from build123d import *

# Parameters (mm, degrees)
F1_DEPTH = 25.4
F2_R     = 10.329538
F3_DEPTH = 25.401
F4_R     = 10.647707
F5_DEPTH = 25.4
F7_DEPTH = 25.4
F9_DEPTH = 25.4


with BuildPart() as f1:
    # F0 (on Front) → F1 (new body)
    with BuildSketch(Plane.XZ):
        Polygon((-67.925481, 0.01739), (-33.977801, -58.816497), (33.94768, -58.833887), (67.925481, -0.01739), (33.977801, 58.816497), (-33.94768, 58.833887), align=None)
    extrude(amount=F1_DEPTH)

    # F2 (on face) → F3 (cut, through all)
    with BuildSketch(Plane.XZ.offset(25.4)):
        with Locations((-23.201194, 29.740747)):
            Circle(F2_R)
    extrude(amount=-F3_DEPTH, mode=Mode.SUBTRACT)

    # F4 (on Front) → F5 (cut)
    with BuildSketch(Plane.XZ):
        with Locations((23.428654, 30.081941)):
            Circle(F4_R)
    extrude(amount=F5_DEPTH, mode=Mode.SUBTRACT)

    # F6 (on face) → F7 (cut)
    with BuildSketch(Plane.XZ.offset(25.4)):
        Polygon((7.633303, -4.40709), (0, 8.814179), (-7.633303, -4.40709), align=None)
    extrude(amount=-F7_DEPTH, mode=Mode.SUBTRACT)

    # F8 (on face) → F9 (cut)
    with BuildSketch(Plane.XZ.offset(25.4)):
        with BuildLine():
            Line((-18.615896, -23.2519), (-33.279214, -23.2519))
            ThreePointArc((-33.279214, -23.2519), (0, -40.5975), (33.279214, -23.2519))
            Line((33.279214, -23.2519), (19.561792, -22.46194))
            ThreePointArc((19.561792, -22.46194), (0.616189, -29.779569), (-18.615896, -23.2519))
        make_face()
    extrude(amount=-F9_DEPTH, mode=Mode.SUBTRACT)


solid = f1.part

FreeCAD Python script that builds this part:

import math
import FreeCAD as App
import Part
import Sketcher
from FreeCAD import Vector
Q = App.Units.Quantity


def add_polygon(sketch, points):
    """Adds a closed chain of lines whose ends are joined by coincident constraints."""
    first, n = sketch.GeometryCount, len(points)
    for a, b in zip(points, points[1:] + points[:1]):
        sketch.addGeometry(Part.LineSegment(App.Vector(*a, 0), App.Vector(*b, 0)), False)
    for i in range(n):
        sketch.addConstraint(Sketcher.Constraint("Coincident", first + i, 2, first + (i + 1) % n, 1))

doc = App.newDocument("Part")
body = doc.addObject("PartDesign::Body", "Body")

sketch1 = body.newObject("Sketcher::SketchObject", "Sketch")
sketch1.AttachmentSupport = (doc.getObject("XZ_Plane"), [""])
sketch1.MapMode = "FlatFace"
add_polygon(sketch1, [(-67.925481, 0.01739), (-33.977801, -58.816497), (33.94768, -58.833887), (67.925481, -0.01739), (33.977801, 58.816497), (-33.94768, 58.833887)])
sketch1.addConstraint(Sketcher.Constraint("Symmetric", 0, 2, 3, 2, -1, 1))
sketch1.addConstraint(Sketcher.Constraint("Symmetric", 1, 2, 4, 2, -1, 1))
sketch1.addConstraint(Sketcher.Constraint("Symmetric", 2, 2, 5, 2, -1, 1))
sketch1.addConstraint(Sketcher.Constraint("Equal", 0, 1))
sketch1.addConstraint(Sketcher.Constraint("Equal", 1, 2))
sketch1.addConstraint(Sketcher.Constraint("DistanceX", 0, 2, -1, 1, 33.977801))
sketch1.addConstraint(Sketcher.Constraint("DistanceX", 1, 2, 2, 2, 33.977801))
sketch1.addConstraint(Sketcher.Constraint("DistanceX", -1, 1, 1, 2, 33.94768))
sketch1.addConstraint(Sketcher.Constraint("DistanceY", 2, 2, -1, 1, 0.01739))
pad1 = body.newObject("PartDesign::Pad", "Pad")
pad1.Profile = sketch1
pad1.Length = Q("1 in")

sketch2 = body.newObject("Sketcher::SketchObject", "Sketch001")
sketch2.AttachmentSupport = (doc.getObject("XZ_Plane"), [""])
sketch2.MapMode = "FlatFace"
sketch2.AttachmentOffset = App.Placement(Vector(0, 0, 1 * 25.4), App.Rotation())
sketch2.addGeometry(Part.Circle(Vector(-23.201194, 29.740747, 0), Vector(0, 0, 1), 10.329538), False)
sketch2.addConstraint(Sketcher.Constraint("Diameter", 0, 20.659076))
sketch2.addConstraint(Sketcher.Constraint("DistanceX", 0, 3, -1, 1, 23.201194))
sketch2.addConstraint(Sketcher.Constraint("DistanceY", -1, 1, 0, 3, 29.740747))
pocket1 = body.newObject("PartDesign::Pocket", "Pocket")
pocket1.Profile = sketch2
pocket1.Type = "ThroughAll"

sketch3 = body.newObject("Sketcher::SketchObject", "Sketch002")
sketch3.AttachmentSupport = (doc.getObject("XZ_Plane"), [""])
sketch3.MapMode = "FlatFace"
sketch3.addGeometry(Part.Circle(Vector(23.428654, 30.081941, 0), Vector(0, 0, 1), 10.647707), False)
sketch3.addConstraint(Sketcher.Constraint("Diameter", 0, 21.295414))
sketch3.addConstraint(Sketcher.Constraint("DistanceY", -1, 1, 0, 3, 30.081941))
sketch3.addConstraint(Sketcher.Constraint("DistanceX", -1, 1, 0, 3, 23.428654))
pocket2 = body.newObject("PartDesign::Pocket", "Pocket001")
pocket2.Profile = sketch3
pocket2.Length = Q("1 in")
pocket2.Reversed = True

sketch4 = body.newObject("Sketcher::SketchObject", "Sketch003")
sketch4.AttachmentSupport = (doc.getObject("XZ_Plane"), [""])
sketch4.MapMode = "FlatFace"
sketch4.AttachmentOffset = App.Placement(Vector(0, 0, 1 * 25.4), App.Rotation())
add_polygon(sketch4, [(7.633303, -4.40709), (0, 8.814179), (-7.633303, -4.40709)])
sketch4.addConstraint(Sketcher.Constraint("Horizontal", 2))
sketch4.addConstraint(Sketcher.Constraint("PointOnObject", 0, 2, -2))
sketch4.addConstraint(Sketcher.Constraint("Equal", 0, 1))
sketch4.addConstraint(Sketcher.Constraint("Angle", 0, Q("119.999999 deg")))
sketch4.addConstraint(Sketcher.Constraint("DistanceX", 2, 1, 2, 2, 15.266606))
sketch4.addConstraint(Sketcher.Constraint("DistanceY", -1, 1, 0, 2, 8.814179))
pocket3 = body.newObject("PartDesign::Pocket", "Pocket002")
pocket3.Profile = sketch4
pocket3.Length = Q("1 in")

sketch5 = body.newObject("Sketcher::SketchObject", "Sketch004")
sketch5.AttachmentSupport = (doc.getObject("XZ_Plane"), [""])
sketch5.MapMode = "FlatFace"
sketch5.AttachmentOffset = App.Placement(Vector(0, 0, 1 * 25.4), App.Rotation())
sketch5.addGeometry(Part.LineSegment(Vector(-18.615896, -23.2519, 0), Vector(-33.279214, -23.2519, 0)), False)
sketch5.addGeometry(Part.ArcOfCircle(Part.Circle(Vector(0, -0.000002, 0), Vector(0, 0, 1), 40.597498), math.radians(-145.058334), math.radians(-34.941666)), False)
sketch5.addGeometry(Part.LineSegment(Vector(33.279214, -23.2519, 0), Vector(19.561792, -22.46194, 0)), False)
sketch5.addGeometry(Part.ArcOfCircle(Part.Circle(Vector(0, 0.000002, 0), Vector(0, 0, 1), 29.785945), math.radians(-128.6814), math.radians(-48.947848)), False)
sketch5.addConstraint(Sketcher.Constraint("Coincident", 0, 2, 1, 1))
sketch5.addConstraint(Sketcher.Constraint("Coincident", 1, 2, 2, 1))
sketch5.addConstraint(Sketcher.Constraint("Coincident", 2, 2, 3, 2))
sketch5.addConstraint(Sketcher.Constraint("Coincident", 3, 1, 0, 1))
sketch5.addConstraint(Sketcher.Constraint("Horizontal", 0))
sketch5.addConstraint(Sketcher.Constraint("Coincident", 1, 3, -1, 1))
sketch5.addConstraint(Sketcher.Constraint("Coincident", 3, 3, -1, 1))
sketch5.addConstraint(Sketcher.Constraint("Horizontal", 0, 2, 1, 2))
sketch5.addConstraint(Sketcher.Constraint("Radius", 1, 40.597498))
sketch5.addConstraint(Sketcher.Constraint("Radius", 3, 29.785945))
sketch5.addConstraint(Sketcher.Constraint("DistanceX", 0, 2, 0, 1, 14.663318))
sketch5.addConstraint(Sketcher.Constraint("Distance", 2, 13.740149))
pocket4 = body.newObject("PartDesign::Pocket", "Pocket003")
pocket4.Profile = sketch5
pocket4.Length = Q("1 in")

doc.recompute()
